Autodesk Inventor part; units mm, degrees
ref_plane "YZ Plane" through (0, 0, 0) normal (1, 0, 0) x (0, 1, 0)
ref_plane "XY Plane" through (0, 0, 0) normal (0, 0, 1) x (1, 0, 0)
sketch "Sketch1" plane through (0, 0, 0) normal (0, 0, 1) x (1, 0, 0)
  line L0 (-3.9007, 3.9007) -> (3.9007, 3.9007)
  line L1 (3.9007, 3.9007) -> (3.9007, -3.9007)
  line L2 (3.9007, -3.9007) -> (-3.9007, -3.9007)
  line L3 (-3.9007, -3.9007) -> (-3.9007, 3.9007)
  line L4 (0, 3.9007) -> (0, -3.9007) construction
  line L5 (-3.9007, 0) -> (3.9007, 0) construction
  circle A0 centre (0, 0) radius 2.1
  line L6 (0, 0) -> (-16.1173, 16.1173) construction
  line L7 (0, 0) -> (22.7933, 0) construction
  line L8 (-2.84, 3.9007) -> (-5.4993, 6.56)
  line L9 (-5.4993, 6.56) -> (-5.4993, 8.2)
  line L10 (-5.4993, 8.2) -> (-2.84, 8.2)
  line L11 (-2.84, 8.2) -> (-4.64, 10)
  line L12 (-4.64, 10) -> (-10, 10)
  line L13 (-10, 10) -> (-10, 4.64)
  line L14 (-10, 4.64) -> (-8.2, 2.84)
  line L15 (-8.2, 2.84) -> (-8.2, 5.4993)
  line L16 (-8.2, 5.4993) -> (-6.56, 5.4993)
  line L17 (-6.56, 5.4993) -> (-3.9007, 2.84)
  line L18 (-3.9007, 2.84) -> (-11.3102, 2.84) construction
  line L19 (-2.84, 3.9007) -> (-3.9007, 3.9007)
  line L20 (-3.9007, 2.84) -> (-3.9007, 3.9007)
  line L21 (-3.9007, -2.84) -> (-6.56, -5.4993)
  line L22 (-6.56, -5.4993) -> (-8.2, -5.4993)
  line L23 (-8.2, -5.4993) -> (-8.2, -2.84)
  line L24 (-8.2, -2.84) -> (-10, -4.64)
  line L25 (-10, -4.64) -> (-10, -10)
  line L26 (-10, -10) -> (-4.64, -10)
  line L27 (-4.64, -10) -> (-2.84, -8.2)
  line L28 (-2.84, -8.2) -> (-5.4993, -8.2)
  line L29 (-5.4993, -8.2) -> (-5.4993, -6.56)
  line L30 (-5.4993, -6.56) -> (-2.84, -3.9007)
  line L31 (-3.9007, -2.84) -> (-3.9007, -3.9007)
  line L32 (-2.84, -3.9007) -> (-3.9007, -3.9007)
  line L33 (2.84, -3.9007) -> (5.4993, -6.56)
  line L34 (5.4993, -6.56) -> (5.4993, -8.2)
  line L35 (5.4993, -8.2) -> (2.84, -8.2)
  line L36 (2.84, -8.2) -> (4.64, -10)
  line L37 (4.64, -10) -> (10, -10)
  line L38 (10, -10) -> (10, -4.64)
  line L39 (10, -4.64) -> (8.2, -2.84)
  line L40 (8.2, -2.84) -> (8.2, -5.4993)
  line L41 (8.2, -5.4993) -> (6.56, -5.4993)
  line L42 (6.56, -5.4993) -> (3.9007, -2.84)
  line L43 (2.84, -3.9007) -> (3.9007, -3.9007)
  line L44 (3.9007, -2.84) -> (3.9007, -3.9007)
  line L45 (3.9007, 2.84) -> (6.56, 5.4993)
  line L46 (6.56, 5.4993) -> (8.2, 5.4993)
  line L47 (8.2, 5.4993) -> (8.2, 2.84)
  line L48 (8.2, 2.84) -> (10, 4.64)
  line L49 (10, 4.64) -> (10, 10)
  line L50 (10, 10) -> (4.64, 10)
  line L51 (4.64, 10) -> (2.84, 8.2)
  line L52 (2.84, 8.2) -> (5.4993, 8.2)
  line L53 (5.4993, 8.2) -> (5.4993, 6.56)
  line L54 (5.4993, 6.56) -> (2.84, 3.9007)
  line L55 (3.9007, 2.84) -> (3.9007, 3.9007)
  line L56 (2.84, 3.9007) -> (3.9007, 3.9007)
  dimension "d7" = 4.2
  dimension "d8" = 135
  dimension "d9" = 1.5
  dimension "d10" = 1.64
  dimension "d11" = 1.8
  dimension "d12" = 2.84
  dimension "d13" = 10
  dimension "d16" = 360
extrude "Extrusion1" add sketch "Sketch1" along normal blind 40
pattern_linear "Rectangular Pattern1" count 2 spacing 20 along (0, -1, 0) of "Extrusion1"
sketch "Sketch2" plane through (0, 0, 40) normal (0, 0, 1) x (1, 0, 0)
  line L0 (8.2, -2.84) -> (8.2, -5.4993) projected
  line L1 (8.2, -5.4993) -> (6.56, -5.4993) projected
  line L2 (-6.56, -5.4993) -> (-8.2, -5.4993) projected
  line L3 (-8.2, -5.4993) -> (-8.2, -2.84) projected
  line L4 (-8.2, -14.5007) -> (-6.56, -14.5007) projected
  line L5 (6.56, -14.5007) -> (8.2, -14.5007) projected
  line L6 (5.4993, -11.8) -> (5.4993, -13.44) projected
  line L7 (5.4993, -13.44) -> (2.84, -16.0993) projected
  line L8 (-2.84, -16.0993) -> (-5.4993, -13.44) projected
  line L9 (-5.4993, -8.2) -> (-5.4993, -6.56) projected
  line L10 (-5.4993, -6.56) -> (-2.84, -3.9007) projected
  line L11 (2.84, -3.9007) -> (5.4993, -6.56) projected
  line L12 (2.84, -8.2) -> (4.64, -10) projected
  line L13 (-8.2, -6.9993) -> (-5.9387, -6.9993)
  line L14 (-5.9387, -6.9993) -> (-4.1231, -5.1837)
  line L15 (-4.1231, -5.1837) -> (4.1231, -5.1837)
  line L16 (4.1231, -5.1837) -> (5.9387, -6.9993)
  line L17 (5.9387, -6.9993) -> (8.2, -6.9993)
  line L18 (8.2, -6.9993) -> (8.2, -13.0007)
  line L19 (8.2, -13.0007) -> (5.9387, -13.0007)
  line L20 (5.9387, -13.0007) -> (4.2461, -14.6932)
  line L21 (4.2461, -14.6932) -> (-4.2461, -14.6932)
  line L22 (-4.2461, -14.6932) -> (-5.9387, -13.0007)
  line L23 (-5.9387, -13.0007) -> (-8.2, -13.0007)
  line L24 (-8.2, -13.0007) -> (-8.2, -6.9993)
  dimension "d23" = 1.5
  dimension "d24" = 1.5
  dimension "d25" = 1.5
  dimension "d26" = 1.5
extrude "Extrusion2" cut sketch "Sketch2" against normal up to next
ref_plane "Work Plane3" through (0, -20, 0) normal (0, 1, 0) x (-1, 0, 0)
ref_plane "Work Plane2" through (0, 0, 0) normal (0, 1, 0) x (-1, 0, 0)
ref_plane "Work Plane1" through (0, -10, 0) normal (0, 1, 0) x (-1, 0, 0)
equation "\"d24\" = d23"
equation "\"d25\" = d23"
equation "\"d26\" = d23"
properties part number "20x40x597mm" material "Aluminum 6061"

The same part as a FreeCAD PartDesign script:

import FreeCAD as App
import Part
import Sketcher

V = App.Vector

doc = App.newDocument("Part")
params = doc.addObject("Spreadsheet::Sheet", "Params")
for row, (alias, value) in enumerate([
    ("sketch1_diameter", "4.2 mm"),
    ("sketch1_width", "1.64 mm"),
    ("pad1_length", "40 mm"),
    ("linearpattern_pitch", "20 mm"),
    ("pocket1_length", "40 mm"),
], start=1):
    params.set(f"A{row}", alias)
    params.set(f"B{row}", "=" + value)
    params.setAlias(f"B{row}", alias)

body = doc.addObject("PartDesign::Body", "Body")

sketch1 = doc.addObject("Sketcher::SketchObject", "Sketch")
body.addObject(sketch1)
sketch1.AttachmentSupport = (doc.XY_Plane, [""])
sketch1.MapMode = "FlatFace"
sketch1.addGeometry(Part.LineSegment(V(-6.56, 5.4993, 0), V(-3.9007, 2.84, 0)), False)
sketch1.addGeometry(Part.LineSegment(V(-3.9007, 2.84, 0), V(-3.9007, -2.84, 0)), False)
sketch1.addGeometry(Part.LineSegment(V(-3.9007, -2.84, 0), V(-6.56, -5.4993, 0)), False)
sketch1.addGeometry(Part.LineSegment(V(-6.56, -5.4993, 0), V(-8.2, -5.4993, 0)), False)
sketch1.addGeometry(Part.LineSegment(V(-8.2, -5.4993, 0), V(-8.2, -2.84, 0)), False)
sketch1.addGeometry(Part.LineSegment(V(-8.2, -2.84, 0), V(-10, -4.64, 0)), False)
sketch1.addGeometry(Part.LineSegment(V(-10, -4.64, 0), V(-10, -10, 0)), False)
sketch1.addGeometry(Part.LineSegment(V(-10, -10, 0), V(-4.64, -10, 0)), False)
sketch1.addGeometry(Part.LineSegment(V(-4.64, -10, 0), V(-2.84, -8.2, 0)), False)
sketch1.addGeometry(Part.LineSegment(V(-2.84, -8.2, 0), V(-5.4993, -8.2, 0)), False)
sketch1.addGeometry(Part.LineSegment(V(-5.4993, -8.2, 0), V(-5.4993, -6.56, 0)), False)
sketch1.addGeometry(Part.LineSegment(V(-5.4993, -6.56, 0), V(-2.84, -3.9007, 0)), False)
sketch1.addGeometry(Part.LineSegment(V(-2.84, -3.9007, 0), V(2.84, -3.9007, 0)), False)
sketch1.addGeometry(Part.LineSegment(V(2.84, -3.9007, 0), V(5.4993, -6.56, 0)), False)
sketch1.addGeometry(Part.LineSegment(V(5.4993, -6.56, 0), V(5.4993, -8.2, 0)), False)
sketch1.addGeometry(Part.LineSegment(V(5.4993, -8.2, 0), V(2.84, -8.2, 0)), False)
sketch1.addGeometry(Part.LineSegment(V(2.84, -8.2, 0), V(4.64, -10, 0)), False)
sketch1.addGeometry(Part.LineSegment(V(4.64, -10, 0), V(10, -10, 0)), False)
sketch1.addGeometry(Part.LineSegment(V(10, -10, 0), V(10, -4.64, 0)), False)
sketch1.addGeometry(Part.LineSegment(V(10, -4.64, 0), V(8.2, -2.84, 0)), False)
sketch1.addGeometry(Part.LineSegment(V(8.2, -2.84, 0), V(8.2, -5.4993, 0)), False)
sketch1.addGeometry(Part.LineSegment(V(8.2, -5.4993, 0), V(6.56, -5.4993, 0)), False)
sketch1.addGeometry(Part.LineSegment(V(6.56, -5.4993, 0), V(3.9007, -2.84, 0)), False)
sketch1.addGeometry(Part.LineSegment(V(3.9007, -2.84, 0), V(3.9007, 2.84, 0)), False)
sketch1.addGeometry(Part.LineSegment(V(3.9007, 2.84, 0), V(6.56, 5.4993, 0)), False)
sketch1.addGeometry(Part.LineSegment(V(6.56, 5.4993, 0), V(8.2, 5.4993, 0)), False)
sketch1.addGeometry(Part.LineSegment(V(8.2, 5.4993, 0), V(8.2, 2.84, 0)), False)
sketch1.addGeometry(Part.LineSegment(V(8.2, 2.84, 0), V(10, 4.64, 0)), False)
sketch1.addGeometry(Part.LineSegment(V(10, 4.64, 0), V(10, 10, 0)), False)
sketch1.addGeometry(Part.LineSegment(V(10, 10, 0), V(4.64, 10, 0)), False)
sketch1.addGeometry(Part.LineSegment(V(4.64, 10, 0), V(2.84, 8.2, 0)), False)
sketch1.addGeometry(Part.LineSegment(V(2.84, 8.2, 0), V(5.4993, 8.2, 0)), False)
sketch1.addGeometry(Part.LineSegment(V(5.4993, 8.2, 0), V(5.4993, 6.56, 0)), False)
sketch1.addGeometry(Part.LineSegment(V(5.4993, 6.56, 0), V(2.84, 3.9007, 0)), False)
sketch1.addGeometry(Part.LineSegment(V(2.84, 3.9007, 0), V(-2.84, 3.9007, 0)), False)
sketch1.addGeometry(Part.LineSegment(V(-2.84, 3.9007, 0), V(-5.4993, 6.56, 0)), False)
sketch1.addGeometry(Part.LineSegment(V(-5.4993, 6.56, 0), V(-5.4993, 8.2, 0)), False)
sketch1.addGeometry(Part.LineSegment(V(-5.4993, 8.2, 0), V(-2.84, 8.2, 0)), False)
sketch1.addGeometry(Part.LineSegment(V(-2.84, 8.2, 0), V(-4.64, 10, 0)), False)
sketch1.addGeometry(Part.LineSegment(V(-4.64, 10, 0), V(-10, 10, 0)), False)
sketch1.addGeometry(Part.LineSegment(V(-10, 10, 0), V(-10, 4.64, 0)), False)
sketch1.addGeometry(Part.LineSegment(V(-10, 4.64, 0), V(-8.2, 2.84, 0)), False)
sketch1.addGeometry(Part.LineSegment(V(-8.2, 2.84, 0), V(-8.2, 5.4993, 0)), False)
sketch1.addGeometry(Part.LineSegment(V(-8.2, 5.4993, 0), V(-6.56, 5.4993, 0)), False)
sketch1.addGeometry(Part.Circle(V(0, 0, 0), V(0, 0, 1), 2.1), False)
sketch1.addConstraint(Sketcher.Constraint("Coincident", 0, 2, 1, 1))
sketch1.addConstraint(Sketcher.Constraint("Coincident", 1, 2, 2, 1))
sketch1.addConstraint(Sketcher.Constraint("Coincident", 2, 2, 3, 1))
sketch1.addConstraint(Sketcher.Constraint("Coincident", 3, 2, 4, 1))
sketch1.addConstraint(Sketcher.Constraint("Coincident", 4, 2, 5, 1))
sketch1.addConstraint(Sketcher.Constraint("Coincident", 5, 2, 6, 1))
sketch1.addConstraint(Sketcher.Constraint("Coincident", 6, 2, 7, 1))
sketch1.addConstraint(Sketcher.Constraint("Coincident", 7, 2, 8, 1))
sketch1.addConstraint(Sketcher.Constraint("Coincident", 8, 2, 9, 1))
sketch1.addConstraint(Sketcher.Constraint("Coincident", 9, 2, 10, 1))
sketch1.addConstraint(Sketcher.Constraint("Coincident", 10, 2, 11, 1))
sketch1.addConstraint(Sketcher.Constraint("Coincident", 11, 2, 12, 1))
sketch1.addConstraint(Sketcher.Constraint("Coincident", 12, 2, 13, 1))
sketch1.addConstraint(Sketcher.Constraint("Coincident", 13, 2, 14, 1))
sketch1.addConstraint(Sketcher.Constraint("Coincident", 14, 2, 15, 1))
sketch1.addConstraint(Sketcher.Constraint("Coincident", 15, 2, 16, 1))
sketch1.addConstraint(Sketcher.Constraint("Coincident", 16, 2, 17, 1))
sketch1.addConstraint(Sketcher.Constraint("Coincident", 17, 2, 18, 1))
sketch1.addConstraint(Sketcher.Constraint("Coincident", 18, 2, 19, 1))
sketch1.addConstraint(Sketcher.Constraint("Coincident", 19, 2, 20, 1))
sketch1.addConstraint(Sketcher.Constraint("Coincident", 20, 2, 21, 1))
sketch1.addConstraint(Sketcher.Constraint("Coincident", 21, 2, 22, 1))
sketch1.addConstraint(Sketcher.Constraint("Coincident", 22, 2, 23, 1))
sketch1.addConstraint(Sketcher.Constraint("Coincident", 23, 2, 24, 1))
sketch1.addConstraint(Sketcher.Constraint("Coincident", 24, 2, 25, 1))
sketch1.addConstraint(Sketcher.Constraint("Coincident", 25, 2, 26, 1))
sketch1.addConstraint(Sketcher.Constraint("Coincident", 26, 2, 27, 1))
sketch1.addConstraint(Sketcher.Constraint("Coincident", 27, 2, 28, 1))
sketch1.addConstraint(Sketcher.Constraint("Coincident", 28, 2, 29, 1))
sketch1.addConstraint(Sketcher.Constraint("Coincident", 29, 2, 30, 1))
sketch1.addConstraint(Sketcher.Constraint("Coincident", 30, 2, 31, 1))
sketch1.addConstraint(Sketcher.Constraint("Coincident", 31, 2, 32, 1))
sketch1.addConstraint(Sketcher.Constraint("Coincident", 32, 2, 33, 1))
sketch1.addConstraint(Sketcher.Constraint("Coincident", 33, 2, 34, 1))
sketch1.addConstraint(Sketcher.Constraint("Coincident", 34, 2, 35, 1))
sketch1.addConstraint(Sketcher.Constraint("Coincident", 35, 2, 36, 1))
sketch1.addConstraint(Sketcher.Constraint("Coincident", 36, 2, 37, 1))
sketch1.addConstraint(Sketcher.Constraint("Coincident", 37, 2, 38, 1))
sketch1.addConstraint(Sketcher.Constraint("Coincident", 38, 2, 39, 1))
sketch1.addConstraint(Sketcher.Constraint("Coincident", 39, 2, 40, 1))
sketch1.addConstraint(Sketcher.Constraint("Coincident", 40, 2, 41, 1))
sketch1.addConstraint(Sketcher.Constraint("Coincident", 41, 2, 42, 1))
sketch1.addConstraint(Sketcher.Constraint("Coincident", 42, 2, 43, 1))
sketch1.addConstraint(Sketcher.Constraint("Coincident", 43, 2, 0, 1))
sketch1.addConstraint(Sketcher.Constraint("Vertical", 1))
sketch1.addConstraint(Sketcher.Constraint("Horizontal", 3))
sketch1.addConstraint(Sketcher.Constraint("Vertical", 4))
sketch1.addConstraint(Sketcher.Constraint("Vertical", 6))
sketch1.addConstraint(Sketcher.Constraint("Horizontal", 7))
sketch1.addConstraint(Sketcher.Constraint("Horizontal", 9))
sketch1.addConstraint(Sketcher.Constraint("Vertical", 10))
sketch1.addConstraint(Sketcher.Constraint("Horizontal", 12))
sketch1.addConstraint(Sketcher.Constraint("Vertical", 14))
sketch1.addConstraint(Sketcher.Constraint("Horizontal", 15))
sketch1.addConstraint(Sketcher.Constraint("Horizontal", 17))
sketch1.addConstraint(Sketcher.Constraint("Vertical", 18))
sketch1.addConstraint(Sketcher.Constraint("Vertical", 20))
sketch1.addConstraint(Sketcher.Constraint("Horizontal", 21))
sketch1.addConstraint(Sketcher.Constraint("Vertical", 23))
sketch1.addConstraint(Sketcher.Constraint("Horizontal", 25))
sketch1.addConstraint(Sketcher.Constraint("Vertical", 26))
sketch1.addConstraint(Sketcher.Constraint("Vertical", 28))
sketch1.addConstraint(Sketcher.Constraint("Horizontal", 29))
sketch1.addConstraint(Sketcher.Constraint("Horizontal", 31))
sketch1.addConstraint(Sketcher.Constraint("Vertical", 32))
sketch1.addConstraint(Sketcher.Constraint("Horizontal", 34))
sketch1.addConstraint(Sketcher.Constraint("Vertical", 36))
sketch1.addConstraint(Sketcher.Constraint("Horizontal", 37))
sketch1.addConstraint(Sketcher.Constraint("Horizontal", 39))
sketch1.addConstraint(Sketcher.Constraint("Vertical", 40))
sketch1.addConstraint(Sketcher.Constraint("Vertical", 42))
sketch1.addConstraint(Sketcher.Constraint("Horizontal", 43))
sketch1.addConstraint(Sketcher.Constraint("Coincident", 44, 3, -1, 1))
sketch1.addConstraint(Sketcher.Constraint("Symmetric", 0, 2, 22, 2, -1, 1))
sketch1.addConstraint(Sketcher.Constraint("Symmetric", 2, 2, 24, 2, -1, 1))
sketch1.addConstraint(Sketcher.Constraint("Symmetric", 4, 2, 26, 2, -1, 1))
sketch1.addConstraint(Sketcher.Constraint("Symmetric", 5, 2, 27, 2, -1, 1))
sketch1.addConstraint(Sketcher.Constraint("Symmetric", 7, 2, 29, 2, -1, 1))
sketch1.addConstraint(Sketcher.Constraint("Symmetric", 8, 2, 30, 2, -1, 1))
sketch1.addConstraint(Sketcher.Constraint("Symmetric", 10, 2, 32, 2, -1, 1))
sketch1.addConstraint(Sketcher.Constraint("Symmetric", 11, 2, 33, 2, -1, 1))
sketch1.addConstraint(Sketcher.Constraint("Symmetric", 13, 2, 35, 2, -1, 1))
sketch1.addConstraint(Sketcher.Constraint("Symmetric", 15, 2, 37, 2, -1, 1))
sketch1.addConstraint(Sketcher.Constraint("Symmetric", 16, 2, 38, 2, -1, 1))
sketch1.addConstraint(Sketcher.Constraint("Symmetric", 18, 2, 40, 2, -1, 1))
sketch1.addConstraint(Sketcher.Constraint("Symmetric", 19, 2, 41, 2, -1, 1))
sketch1.addConstraint(Sketcher.Constraint("Symmetric", 21, 2, 43, 2, -1, 1))
sketch1.addConstraint(Sketcher.Constraint("Symmetric", 10, 2, 13, 2, -2))
sketch1.addConstraint(Sketcher.Constraint("Symmetric", 8, 2, 15, 2, -2))
sketch1.addConstraint(Sketcher.Constraint("Symmetric", 7, 2, 16, 2, -2))
sketch1.addConstraint(Sketcher.Constraint("Symmetric", 5, 2, 18, 2, -2))
sketch1.addConstraint(Sketcher.Constraint("Symmetric", 4, 2, 19, 2, -2))
sketch1.addConstraint(Sketcher.Constraint("Symmetric", 2, 2, 21, 2, -2))
sketch1.addConstraint(Sketcher.Constraint("Perpendicular", 0, 2))
sketch1.addConstraint(Sketcher.Constraint("Parallel", 2, 5))
sketch1.addConstraint(Sketcher.Constraint("Parallel", 5, 8))
sketch1.addConstraint(Sketcher.Constraint("Parallel", 8, 11))
sketch1.addConstraint(Sketcher.Constraint("Perpendicular", 11, 13))
sketch1.addConstraint(Sketcher.Constraint("Parallel", 13, 16))
sketch1.addConstraint(Sketcher.Constraint("Perpendicular", 22, 24))
sketch1.addConstraint(Sketcher.Constraint("Perpendicular", 33, 35))
sketch1.addConstraint(Sketcher.Constraint("Horizontal", 1, 2, 4, 2))
sketch1.addConstraint(Sketcher.Constraint("Vertical", 8, 2, 11, 2))
sketch1.addConstraint(Sketcher.Constraint("Equal", 34, 1))
sketch1.addConstraint(Sketcher.Constraint("Equal", 37, 4))
sketch1.addConstraint(Sketcher.Constraint("Equal", 39, 6))
sketch1.addConstraint(Sketcher.Constraint("Equal", 43, 10))
sketch1.addConstraint(Sketcher.Constraint("Equal", 5, 8))
sketch1.addConstraint(Sketcher.Constraint("Diameter", 44, 4.2))
sketch1.addConstraint(Sketcher.Constraint("DistanceX", 5, 2, -1, 1, 10.0))
sketch1.addConstraint(Sketcher.Constraint("DistanceX", 3, 2, 3, 1, 1.64))
sketch1.addConstraint(Sketcher.Constraint("DistanceX", 5, 2, 3, 2, 1.8))
sketch1.addConstraint(Sketcher.Constraint("DistanceY", -1, 1, 0, 2, 2.84))
sketch1.addConstraint(Sketcher.Constraint("DistanceX", 9, 2, 9, 1, 2.6593))
sketch1.setExpression("Constraints[108]", "Params.sketch1_diameter")
sketch1.setExpression("Constraints[110]", "Params.sketch1_width")
pad1 = doc.addObject("PartDesign::Pad", "Pad")
body.addObject(pad1)
pad1.Profile = sketch1
pad1.setExpression("Length", "Params.pad1_length")
doc.recompute()

linearpattern = doc.addObject("PartDesign::LinearPattern", "LinearPattern")
body.addObject(linearpattern)
linearpattern.Originals = [pad1]
linearpattern.Direction = (doc.Y_Axis, [""])
linearpattern.Mode = "offset"
linearpattern.setExpression("Offset", "Params.linearpattern_pitch")
linearpattern.Occurrences = 2
linearpattern.Reversed = True
body.Tip = linearpattern

sketch2 = doc.addObject("Sketcher::SketchObject", "Sketch001")
body.addObject(sketch2)
sketch2.AttachmentSupport = (doc.XY_Plane, [""])
sketch2.MapMode = "FlatFace"
sketch2.AttachmentOffset = App.Placement(V(0, 0, 40), App.Rotation())
sketch2.addGeometry(Part.LineSegment(V(4.2461, -14.6932, 0), V(5.4993, -13.44, 0)), False)
sketch2.addGeometry(Part.LineSegment(V(5.499337, -13.440037, 0), V(5.9387, -13.0007, 0)), False)
sketch2.addGeometry(Part.LineSegment(V(5.9387, -13.0007, 0), V(8.2, -13.0007, 0)), False)
sketch2.addGeometry(Part.LineSegment(V(8.2, -13.0007, 0), V(8.2, -6.9993, 0)), False)
sketch2.addGeometry(Part.LineSegment(V(8.2, -6.9993, 0), V(5.9387, -6.9993, 0)), False)
sketch2.addGeometry(Part.LineSegment(V(5.9387, -6.9993, 0), V(5.49935, -6.55995, 0)), False)
sketch2.addGeometry(Part.LineSegment(V(5.4993, -6.56, 0), V(4.12305, -5.18375, 0)), False)
sketch2.addGeometry(Part.LineSegment(V(4.1231, -5.1837, 0), V(-4.1231, -5.1837, 0)), False)
sketch2.addGeometry(Part.LineSegment(V(-4.12305, -5.18375, 0), V(-5.4993, -6.56, 0)), False)
sketch2.addGeometry(Part.LineSegment(V(-5.49935, -6.55995, 0), V(-5.9387, -6.9993, 0)), False)
sketch2.addGeometry(Part.LineSegment(V(-5.9387, -6.9993, 0), V(-8.2, -6.9993, 0)), False)
sketch2.addGeometry(Part.LineSegment(V(-8.2, -6.9993, 0), V(-8.2, -13.0007, 0)), False)
sketch2.addGeometry(Part.LineSegment(V(-8.2, -13.0007, 0), V(-5.9387, -13.0007, 0)), False)
sketch2.addGeometry(Part.LineSegment(V(-5.9387, -13.0007, 0), V(-5.499337, -13.440037, 0)), False)
sketch2.addGeometry(Part.LineSegment(V(-5.4993, -13.44, 0), V(-4.2461, -14.6932, 0)), False)
sketch2.addGeometry(Part.LineSegment(V(-4.2461, -14.6932, 0), V(4.2461, -14.6932, 0)), False)
sketch2.addConstraint(Sketcher.Constraint("Coincident", 0, 2, 1, 1))
sketch2.addConstraint(Sketcher.Constraint("Coincident", 1, 2, 2, 1))
sketch2.addConstraint(Sketcher.Constraint("Coincident", 2, 2, 3, 1))
sketch2.addConstraint(Sketcher.Constraint("Coincident", 3, 2, 4, 1))
sketch2.addConstraint(Sketcher.Constraint("Coincident", 4, 2, 5, 1))
sketch2.addConstraint(Sketcher.Constraint("Coincident", 5, 2, 6, 1))
sketch2.addConstraint(Sketcher.Constraint("Coincident", 6, 2, 7, 1))
sketch2.addConstraint(Sketcher.Constraint("Coincident", 7, 2, 8, 1))
sketch2.addConstraint(Sketcher.Constraint("Coincident", 8, 2, 9, 1))
sketch2.addConstraint(Sketcher.Constraint("Coincident", 9, 2, 10, 1))
sketch2.addConstraint(Sketcher.Constraint("Coincident", 10, 2, 11, 1))
sketch2.addConstraint(Sketcher.Constraint("Coincident", 11, 2, 12, 1))
sketch2.addConstraint(Sketcher.Constraint("Coincident", 12, 2, 13, 1))
sketch2.addConstraint(Sketcher.Constraint("Coincident", 13, 2, 14, 1))
sketch2.addConstraint(Sketcher.Constraint("Coincident", 14, 2, 15, 1))
sketch2.addConstraint(Sketcher.Constraint("Coincident", 15, 2, 0, 1))
sketch2.addConstraint(Sketcher.Constraint("Horizontal", 2))
sketch2.addConstraint(Sketcher.Constraint("Vertical", 3))
sketch2.addConstraint(Sketcher.Constraint("Horizontal", 4))
sketch2.addConstraint(Sketcher.Constraint("Horizontal", 7))
sketch2.addConstraint(Sketcher.Constraint("Horizontal", 10))
sketch2.addConstraint(Sketcher.Constraint("Vertical", 11))
sketch2.addConstraint(Sketcher.Constraint("Horizontal", 12))
sketch2.addConstraint(Sketcher.Constraint("Horizontal", 15))
sketch2.addConstraint(Sketcher.Constraint("Symmetric", 5, 2, 8, 2, -2))
sketch2.addConstraint(Sketcher.Constraint("Symmetric", 4, 2, 9, 2, -2))
sketch2.addConstraint(Sketcher.Constraint("Symmetric", 2, 2, 11, 2, -2))
sketch2.addConstraint(Sketcher.Constraint("Symmetric", 0, 2, 13, 2, -2))
sketch2.addConstraint(Sketcher.Constraint("Parallel", 0, 1))
sketch2.addConstraint(Sketcher.Constraint("Perpendicular", 1, 5))
sketch2.addConstraint(Sketcher.Constraint("Parallel", 5, 6))
sketch2.addConstraint(Sketcher.Constraint("Perpendicular", 6, 8))
sketch2.addConstraint(Sketcher.Constraint("Parallel", 8, 9))
sketch2.addConstraint(Sketcher.Constraint("Perpendicular", 9, 13))
sketch2.addConstraint(Sketcher.Constraint("Parallel", 13, 14))
sketch2.addConstraint(Sketcher.Constraint("Vertical", 1, 2, 4, 2))
sketch2.addConstraint(Sketcher.Constraint("Vertical", 0, 2, 5, 2))
sketch2.addConstraint(Sketcher.Constraint("DistanceX", -1, 1, 2, 2, 8.2))
sketch2.addConstraint(Sketcher.Constraint("DistanceY", 0, 2, -1, 1, 13.44))
sketch2.addConstraint(Sketcher.Constraint("DistanceY", 5, 2, -1, 1, 6.56))
sketch2.addConstraint(Sketcher.Constraint("DistanceX", 2, 1, 2, 2, 2.2613))
sketch2.addConstraint(Sketcher.Constraint("DistanceX", 7, 2, 7, 1, 8.2462))
sketch2.addConstraint(Sketcher.Constraint("DistanceX", 15, 1, 15, 2, 8.4922))
sketch2.addConstraint(Sketcher.Constraint("DistanceY", 3, 1, 3, 2, 6.0014))
pocket1 = doc.addObject("PartDesign::Pocket", "Pocket")
body.addObject(pocket1)
pocket1.Profile = sketch2
pocket1.setExpression("Length", "Params.pocket1_length")

doc.recompute()
